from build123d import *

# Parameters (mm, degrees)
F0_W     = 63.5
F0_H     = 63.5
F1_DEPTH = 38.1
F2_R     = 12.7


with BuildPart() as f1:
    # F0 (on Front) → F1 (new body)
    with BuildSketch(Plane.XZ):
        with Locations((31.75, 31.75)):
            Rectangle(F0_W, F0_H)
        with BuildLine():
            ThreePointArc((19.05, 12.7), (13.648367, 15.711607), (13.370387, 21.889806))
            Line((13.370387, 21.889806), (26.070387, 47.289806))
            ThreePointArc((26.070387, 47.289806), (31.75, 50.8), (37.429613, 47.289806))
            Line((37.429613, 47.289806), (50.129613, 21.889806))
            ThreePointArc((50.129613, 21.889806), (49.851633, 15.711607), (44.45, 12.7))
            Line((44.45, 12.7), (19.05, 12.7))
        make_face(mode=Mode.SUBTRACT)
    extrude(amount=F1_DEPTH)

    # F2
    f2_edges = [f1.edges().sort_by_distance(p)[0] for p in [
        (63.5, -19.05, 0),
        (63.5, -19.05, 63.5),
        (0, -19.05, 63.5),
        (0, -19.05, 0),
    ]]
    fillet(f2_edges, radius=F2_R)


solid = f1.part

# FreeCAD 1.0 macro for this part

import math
import FreeCAD as App
import Part
import Sketcher
from FreeCAD import Vector
Q = App.Units.Quantity


def edges_at(feature, points):
    """Names of the edges that pass closest to the given points."""
    edges = feature.Shape.Edges
    near = lambda p: min(range(len(edges)), key=lambda i: edges[i].distToShape(Part.Vertex(*p))[0])
    return sorted({f"Edge{near(p) + 1}" for p in points})


def add_polygon(sketch, points):
    """Adds a closed chain of lines whose ends are joined by coincident constraints."""
    first, n = sketch.GeometryCount, len(points)
    for a, b in zip(points, points[1:] + points[:1]):
        sketch.addGeometry(Part.LineSegment(App.Vector(*a, 0), App.Vector(*b, 0)), False)
    for i in range(n):
        sketch.addConstraint(Sketcher.Constraint("Coincident", first + i, 2, first + (i + 1) % n, 1))

doc = App.newDocument("Part")
params = doc.addObject("Spreadsheet::Sheet", "Params")
for row, (alias, value) in enumerate([
    ("sketch1_width", "1 in"),
    ("sketch1_radius", "0.25 in"),
    ("sketch1_width2", "2.5 in"),
    ("pad1_length", "1.5 in"),
    ("fillet_radius", "0.5 in"),
], start=1):
    params.set(f"A{row}", alias)
    params.set(f"B{row}", "=" + value)
    params.setAlias(f"B{row}", alias)

body = doc.addObject("PartDesign::Body", "Body")

# Sketch on XZ plane
sketch1 = body.newObject("Sketcher::SketchObject", "Sketch")
sketch1.AttachmentSupport = (doc.getObject("XZ_Plane"), [""])
sketch1.MapMode = "FlatFace"
add_polygon(sketch1, [(0, 63.5), (0, 0), (63.5, 0), (63.5, 63.5)])  # lines 0-3
sketch1.addGeometry(Part.LineSegment(Vector(44.45, 12.7, 0), Vector(19.05, 12.7, 0)), False)  # 4
sketch1.addGeometry(Part.ArcOfCircle(Part.Circle(Vector(19.049999, 19.05, 0), Vector(0, 0, 1), 6.35), math.radians(153.434946), math.radians(270.000008)), False)  # 5
sketch1.addGeometry(Part.LineSegment(Vector(13.370387, 21.889806, 0), Vector(26.070387, 47.289806, 0)), False)  # 6
sketch1.addGeometry(Part.ArcOfCircle(Part.Circle(Vector(31.75, 44.45, 0), Vector(0, 0, 1), 6.35), math.radians(26.565049), math.radians(153.434951)), False)  # 7
sketch1.addGeometry(Part.LineSegment(Vector(37.429613, 47.289806, 0), Vector(50.129613, 21.889806, 0)), False)  # 8
sketch1.addGeometry(Part.ArcOfCircle(Part.Circle(Vector(44.450001, 19.05, 0), Vector(0, 0, 1), 6.35), math.radians(-90.000008), math.radians(26.565054)), False)  # 9
sketch1.addConstraint(Sketcher.Constraint("Tangent", 4, 2, 5, 2))
sketch1.addConstraint(Sketcher.Constraint("Tangent", 5, 1, 6, 1))
sketch1.addConstraint(Sketcher.Constraint("Tangent", 6, 2, 7, 2))
sketch1.addConstraint(Sketcher.Constraint("Tangent", 7, 1, 8, 1))
sketch1.addConstraint(Sketcher.Constraint("Tangent", 8, 2, 9, 2))
sketch1.addConstraint(Sketcher.Constraint("Tangent", 9, 1, 4, 1))
sketch1.addConstraint(Sketcher.Constraint("Vertical", 0))
sketch1.addConstraint(Sketcher.Constraint("Horizontal", 1))
sketch1.addConstraint(Sketcher.Constraint("Vertical", 2))
sketch1.addConstraint(Sketcher.Constraint("Horizontal", 3))
sketch1.addConstraint(Sketcher.Constraint("Horizontal", 4))
sketch1.addConstraint(Sketcher.Constraint("Coincident", 0, 2, -1, 1))
sketch1.addConstraint(Sketcher.Constraint("Equal", 5, 7))
sketch1.addConstraint(Sketcher.Constraint("Equal", 7, 9))
sketch1.addConstraint(Sketcher.Constraint("Horizontal", 6, 2, 7, 1))
sketch1.addConstraint(Sketcher.Constraint("Equal", 3, 0))
sketch1.addConstraint(Sketcher.Constraint("DistanceX", 4, 2, 4, 1, Q("1 in")))
sketch1.addConstraint(Sketcher.Constraint("Radius", 5, Q("0.25 in")))
sketch1.addConstraint(Sketcher.Constraint("DistanceX", 1, 1, 1, 2, Q("2.5 in")))
sketch1.addConstraint(Sketcher.Constraint("DistanceY", 5, 3, 7, 3, Q("1 in")))
sketch1.addConstraint(Sketcher.Constraint("DistanceY", -1, 1, 4, 2, Q("0.5 in")))
sketch1.addConstraint(Sketcher.Constraint("DistanceX", -1, 1, 5, 3, Q("0.75 in")))
sketch1.setExpression("Constraints[20]", "Params.sketch1_width")
sketch1.setExpression("Constraints[21]", "Params.sketch1_radius")
sketch1.setExpression("Constraints[22]", "Params.sketch1_width2")
pad1 = body.newObject("PartDesign::Pad", "Pad")
pad1.Profile = sketch1
pad1.setExpression("Length", "Params.pad1_length")
doc.recompute()

fillet = body.newObject("PartDesign::Fillet", "Fillet")
fillet.Base = (pad1, edges_at(pad1, [
    (63.5, -19.05, 0),
    (63.5, -19.05, 63.5),
    (0, -19.05, 63.5),
    (0, -19.05, 0),
]))
fillet.setExpression("Radius", "Params.fillet_radius")

doc.recompute()
